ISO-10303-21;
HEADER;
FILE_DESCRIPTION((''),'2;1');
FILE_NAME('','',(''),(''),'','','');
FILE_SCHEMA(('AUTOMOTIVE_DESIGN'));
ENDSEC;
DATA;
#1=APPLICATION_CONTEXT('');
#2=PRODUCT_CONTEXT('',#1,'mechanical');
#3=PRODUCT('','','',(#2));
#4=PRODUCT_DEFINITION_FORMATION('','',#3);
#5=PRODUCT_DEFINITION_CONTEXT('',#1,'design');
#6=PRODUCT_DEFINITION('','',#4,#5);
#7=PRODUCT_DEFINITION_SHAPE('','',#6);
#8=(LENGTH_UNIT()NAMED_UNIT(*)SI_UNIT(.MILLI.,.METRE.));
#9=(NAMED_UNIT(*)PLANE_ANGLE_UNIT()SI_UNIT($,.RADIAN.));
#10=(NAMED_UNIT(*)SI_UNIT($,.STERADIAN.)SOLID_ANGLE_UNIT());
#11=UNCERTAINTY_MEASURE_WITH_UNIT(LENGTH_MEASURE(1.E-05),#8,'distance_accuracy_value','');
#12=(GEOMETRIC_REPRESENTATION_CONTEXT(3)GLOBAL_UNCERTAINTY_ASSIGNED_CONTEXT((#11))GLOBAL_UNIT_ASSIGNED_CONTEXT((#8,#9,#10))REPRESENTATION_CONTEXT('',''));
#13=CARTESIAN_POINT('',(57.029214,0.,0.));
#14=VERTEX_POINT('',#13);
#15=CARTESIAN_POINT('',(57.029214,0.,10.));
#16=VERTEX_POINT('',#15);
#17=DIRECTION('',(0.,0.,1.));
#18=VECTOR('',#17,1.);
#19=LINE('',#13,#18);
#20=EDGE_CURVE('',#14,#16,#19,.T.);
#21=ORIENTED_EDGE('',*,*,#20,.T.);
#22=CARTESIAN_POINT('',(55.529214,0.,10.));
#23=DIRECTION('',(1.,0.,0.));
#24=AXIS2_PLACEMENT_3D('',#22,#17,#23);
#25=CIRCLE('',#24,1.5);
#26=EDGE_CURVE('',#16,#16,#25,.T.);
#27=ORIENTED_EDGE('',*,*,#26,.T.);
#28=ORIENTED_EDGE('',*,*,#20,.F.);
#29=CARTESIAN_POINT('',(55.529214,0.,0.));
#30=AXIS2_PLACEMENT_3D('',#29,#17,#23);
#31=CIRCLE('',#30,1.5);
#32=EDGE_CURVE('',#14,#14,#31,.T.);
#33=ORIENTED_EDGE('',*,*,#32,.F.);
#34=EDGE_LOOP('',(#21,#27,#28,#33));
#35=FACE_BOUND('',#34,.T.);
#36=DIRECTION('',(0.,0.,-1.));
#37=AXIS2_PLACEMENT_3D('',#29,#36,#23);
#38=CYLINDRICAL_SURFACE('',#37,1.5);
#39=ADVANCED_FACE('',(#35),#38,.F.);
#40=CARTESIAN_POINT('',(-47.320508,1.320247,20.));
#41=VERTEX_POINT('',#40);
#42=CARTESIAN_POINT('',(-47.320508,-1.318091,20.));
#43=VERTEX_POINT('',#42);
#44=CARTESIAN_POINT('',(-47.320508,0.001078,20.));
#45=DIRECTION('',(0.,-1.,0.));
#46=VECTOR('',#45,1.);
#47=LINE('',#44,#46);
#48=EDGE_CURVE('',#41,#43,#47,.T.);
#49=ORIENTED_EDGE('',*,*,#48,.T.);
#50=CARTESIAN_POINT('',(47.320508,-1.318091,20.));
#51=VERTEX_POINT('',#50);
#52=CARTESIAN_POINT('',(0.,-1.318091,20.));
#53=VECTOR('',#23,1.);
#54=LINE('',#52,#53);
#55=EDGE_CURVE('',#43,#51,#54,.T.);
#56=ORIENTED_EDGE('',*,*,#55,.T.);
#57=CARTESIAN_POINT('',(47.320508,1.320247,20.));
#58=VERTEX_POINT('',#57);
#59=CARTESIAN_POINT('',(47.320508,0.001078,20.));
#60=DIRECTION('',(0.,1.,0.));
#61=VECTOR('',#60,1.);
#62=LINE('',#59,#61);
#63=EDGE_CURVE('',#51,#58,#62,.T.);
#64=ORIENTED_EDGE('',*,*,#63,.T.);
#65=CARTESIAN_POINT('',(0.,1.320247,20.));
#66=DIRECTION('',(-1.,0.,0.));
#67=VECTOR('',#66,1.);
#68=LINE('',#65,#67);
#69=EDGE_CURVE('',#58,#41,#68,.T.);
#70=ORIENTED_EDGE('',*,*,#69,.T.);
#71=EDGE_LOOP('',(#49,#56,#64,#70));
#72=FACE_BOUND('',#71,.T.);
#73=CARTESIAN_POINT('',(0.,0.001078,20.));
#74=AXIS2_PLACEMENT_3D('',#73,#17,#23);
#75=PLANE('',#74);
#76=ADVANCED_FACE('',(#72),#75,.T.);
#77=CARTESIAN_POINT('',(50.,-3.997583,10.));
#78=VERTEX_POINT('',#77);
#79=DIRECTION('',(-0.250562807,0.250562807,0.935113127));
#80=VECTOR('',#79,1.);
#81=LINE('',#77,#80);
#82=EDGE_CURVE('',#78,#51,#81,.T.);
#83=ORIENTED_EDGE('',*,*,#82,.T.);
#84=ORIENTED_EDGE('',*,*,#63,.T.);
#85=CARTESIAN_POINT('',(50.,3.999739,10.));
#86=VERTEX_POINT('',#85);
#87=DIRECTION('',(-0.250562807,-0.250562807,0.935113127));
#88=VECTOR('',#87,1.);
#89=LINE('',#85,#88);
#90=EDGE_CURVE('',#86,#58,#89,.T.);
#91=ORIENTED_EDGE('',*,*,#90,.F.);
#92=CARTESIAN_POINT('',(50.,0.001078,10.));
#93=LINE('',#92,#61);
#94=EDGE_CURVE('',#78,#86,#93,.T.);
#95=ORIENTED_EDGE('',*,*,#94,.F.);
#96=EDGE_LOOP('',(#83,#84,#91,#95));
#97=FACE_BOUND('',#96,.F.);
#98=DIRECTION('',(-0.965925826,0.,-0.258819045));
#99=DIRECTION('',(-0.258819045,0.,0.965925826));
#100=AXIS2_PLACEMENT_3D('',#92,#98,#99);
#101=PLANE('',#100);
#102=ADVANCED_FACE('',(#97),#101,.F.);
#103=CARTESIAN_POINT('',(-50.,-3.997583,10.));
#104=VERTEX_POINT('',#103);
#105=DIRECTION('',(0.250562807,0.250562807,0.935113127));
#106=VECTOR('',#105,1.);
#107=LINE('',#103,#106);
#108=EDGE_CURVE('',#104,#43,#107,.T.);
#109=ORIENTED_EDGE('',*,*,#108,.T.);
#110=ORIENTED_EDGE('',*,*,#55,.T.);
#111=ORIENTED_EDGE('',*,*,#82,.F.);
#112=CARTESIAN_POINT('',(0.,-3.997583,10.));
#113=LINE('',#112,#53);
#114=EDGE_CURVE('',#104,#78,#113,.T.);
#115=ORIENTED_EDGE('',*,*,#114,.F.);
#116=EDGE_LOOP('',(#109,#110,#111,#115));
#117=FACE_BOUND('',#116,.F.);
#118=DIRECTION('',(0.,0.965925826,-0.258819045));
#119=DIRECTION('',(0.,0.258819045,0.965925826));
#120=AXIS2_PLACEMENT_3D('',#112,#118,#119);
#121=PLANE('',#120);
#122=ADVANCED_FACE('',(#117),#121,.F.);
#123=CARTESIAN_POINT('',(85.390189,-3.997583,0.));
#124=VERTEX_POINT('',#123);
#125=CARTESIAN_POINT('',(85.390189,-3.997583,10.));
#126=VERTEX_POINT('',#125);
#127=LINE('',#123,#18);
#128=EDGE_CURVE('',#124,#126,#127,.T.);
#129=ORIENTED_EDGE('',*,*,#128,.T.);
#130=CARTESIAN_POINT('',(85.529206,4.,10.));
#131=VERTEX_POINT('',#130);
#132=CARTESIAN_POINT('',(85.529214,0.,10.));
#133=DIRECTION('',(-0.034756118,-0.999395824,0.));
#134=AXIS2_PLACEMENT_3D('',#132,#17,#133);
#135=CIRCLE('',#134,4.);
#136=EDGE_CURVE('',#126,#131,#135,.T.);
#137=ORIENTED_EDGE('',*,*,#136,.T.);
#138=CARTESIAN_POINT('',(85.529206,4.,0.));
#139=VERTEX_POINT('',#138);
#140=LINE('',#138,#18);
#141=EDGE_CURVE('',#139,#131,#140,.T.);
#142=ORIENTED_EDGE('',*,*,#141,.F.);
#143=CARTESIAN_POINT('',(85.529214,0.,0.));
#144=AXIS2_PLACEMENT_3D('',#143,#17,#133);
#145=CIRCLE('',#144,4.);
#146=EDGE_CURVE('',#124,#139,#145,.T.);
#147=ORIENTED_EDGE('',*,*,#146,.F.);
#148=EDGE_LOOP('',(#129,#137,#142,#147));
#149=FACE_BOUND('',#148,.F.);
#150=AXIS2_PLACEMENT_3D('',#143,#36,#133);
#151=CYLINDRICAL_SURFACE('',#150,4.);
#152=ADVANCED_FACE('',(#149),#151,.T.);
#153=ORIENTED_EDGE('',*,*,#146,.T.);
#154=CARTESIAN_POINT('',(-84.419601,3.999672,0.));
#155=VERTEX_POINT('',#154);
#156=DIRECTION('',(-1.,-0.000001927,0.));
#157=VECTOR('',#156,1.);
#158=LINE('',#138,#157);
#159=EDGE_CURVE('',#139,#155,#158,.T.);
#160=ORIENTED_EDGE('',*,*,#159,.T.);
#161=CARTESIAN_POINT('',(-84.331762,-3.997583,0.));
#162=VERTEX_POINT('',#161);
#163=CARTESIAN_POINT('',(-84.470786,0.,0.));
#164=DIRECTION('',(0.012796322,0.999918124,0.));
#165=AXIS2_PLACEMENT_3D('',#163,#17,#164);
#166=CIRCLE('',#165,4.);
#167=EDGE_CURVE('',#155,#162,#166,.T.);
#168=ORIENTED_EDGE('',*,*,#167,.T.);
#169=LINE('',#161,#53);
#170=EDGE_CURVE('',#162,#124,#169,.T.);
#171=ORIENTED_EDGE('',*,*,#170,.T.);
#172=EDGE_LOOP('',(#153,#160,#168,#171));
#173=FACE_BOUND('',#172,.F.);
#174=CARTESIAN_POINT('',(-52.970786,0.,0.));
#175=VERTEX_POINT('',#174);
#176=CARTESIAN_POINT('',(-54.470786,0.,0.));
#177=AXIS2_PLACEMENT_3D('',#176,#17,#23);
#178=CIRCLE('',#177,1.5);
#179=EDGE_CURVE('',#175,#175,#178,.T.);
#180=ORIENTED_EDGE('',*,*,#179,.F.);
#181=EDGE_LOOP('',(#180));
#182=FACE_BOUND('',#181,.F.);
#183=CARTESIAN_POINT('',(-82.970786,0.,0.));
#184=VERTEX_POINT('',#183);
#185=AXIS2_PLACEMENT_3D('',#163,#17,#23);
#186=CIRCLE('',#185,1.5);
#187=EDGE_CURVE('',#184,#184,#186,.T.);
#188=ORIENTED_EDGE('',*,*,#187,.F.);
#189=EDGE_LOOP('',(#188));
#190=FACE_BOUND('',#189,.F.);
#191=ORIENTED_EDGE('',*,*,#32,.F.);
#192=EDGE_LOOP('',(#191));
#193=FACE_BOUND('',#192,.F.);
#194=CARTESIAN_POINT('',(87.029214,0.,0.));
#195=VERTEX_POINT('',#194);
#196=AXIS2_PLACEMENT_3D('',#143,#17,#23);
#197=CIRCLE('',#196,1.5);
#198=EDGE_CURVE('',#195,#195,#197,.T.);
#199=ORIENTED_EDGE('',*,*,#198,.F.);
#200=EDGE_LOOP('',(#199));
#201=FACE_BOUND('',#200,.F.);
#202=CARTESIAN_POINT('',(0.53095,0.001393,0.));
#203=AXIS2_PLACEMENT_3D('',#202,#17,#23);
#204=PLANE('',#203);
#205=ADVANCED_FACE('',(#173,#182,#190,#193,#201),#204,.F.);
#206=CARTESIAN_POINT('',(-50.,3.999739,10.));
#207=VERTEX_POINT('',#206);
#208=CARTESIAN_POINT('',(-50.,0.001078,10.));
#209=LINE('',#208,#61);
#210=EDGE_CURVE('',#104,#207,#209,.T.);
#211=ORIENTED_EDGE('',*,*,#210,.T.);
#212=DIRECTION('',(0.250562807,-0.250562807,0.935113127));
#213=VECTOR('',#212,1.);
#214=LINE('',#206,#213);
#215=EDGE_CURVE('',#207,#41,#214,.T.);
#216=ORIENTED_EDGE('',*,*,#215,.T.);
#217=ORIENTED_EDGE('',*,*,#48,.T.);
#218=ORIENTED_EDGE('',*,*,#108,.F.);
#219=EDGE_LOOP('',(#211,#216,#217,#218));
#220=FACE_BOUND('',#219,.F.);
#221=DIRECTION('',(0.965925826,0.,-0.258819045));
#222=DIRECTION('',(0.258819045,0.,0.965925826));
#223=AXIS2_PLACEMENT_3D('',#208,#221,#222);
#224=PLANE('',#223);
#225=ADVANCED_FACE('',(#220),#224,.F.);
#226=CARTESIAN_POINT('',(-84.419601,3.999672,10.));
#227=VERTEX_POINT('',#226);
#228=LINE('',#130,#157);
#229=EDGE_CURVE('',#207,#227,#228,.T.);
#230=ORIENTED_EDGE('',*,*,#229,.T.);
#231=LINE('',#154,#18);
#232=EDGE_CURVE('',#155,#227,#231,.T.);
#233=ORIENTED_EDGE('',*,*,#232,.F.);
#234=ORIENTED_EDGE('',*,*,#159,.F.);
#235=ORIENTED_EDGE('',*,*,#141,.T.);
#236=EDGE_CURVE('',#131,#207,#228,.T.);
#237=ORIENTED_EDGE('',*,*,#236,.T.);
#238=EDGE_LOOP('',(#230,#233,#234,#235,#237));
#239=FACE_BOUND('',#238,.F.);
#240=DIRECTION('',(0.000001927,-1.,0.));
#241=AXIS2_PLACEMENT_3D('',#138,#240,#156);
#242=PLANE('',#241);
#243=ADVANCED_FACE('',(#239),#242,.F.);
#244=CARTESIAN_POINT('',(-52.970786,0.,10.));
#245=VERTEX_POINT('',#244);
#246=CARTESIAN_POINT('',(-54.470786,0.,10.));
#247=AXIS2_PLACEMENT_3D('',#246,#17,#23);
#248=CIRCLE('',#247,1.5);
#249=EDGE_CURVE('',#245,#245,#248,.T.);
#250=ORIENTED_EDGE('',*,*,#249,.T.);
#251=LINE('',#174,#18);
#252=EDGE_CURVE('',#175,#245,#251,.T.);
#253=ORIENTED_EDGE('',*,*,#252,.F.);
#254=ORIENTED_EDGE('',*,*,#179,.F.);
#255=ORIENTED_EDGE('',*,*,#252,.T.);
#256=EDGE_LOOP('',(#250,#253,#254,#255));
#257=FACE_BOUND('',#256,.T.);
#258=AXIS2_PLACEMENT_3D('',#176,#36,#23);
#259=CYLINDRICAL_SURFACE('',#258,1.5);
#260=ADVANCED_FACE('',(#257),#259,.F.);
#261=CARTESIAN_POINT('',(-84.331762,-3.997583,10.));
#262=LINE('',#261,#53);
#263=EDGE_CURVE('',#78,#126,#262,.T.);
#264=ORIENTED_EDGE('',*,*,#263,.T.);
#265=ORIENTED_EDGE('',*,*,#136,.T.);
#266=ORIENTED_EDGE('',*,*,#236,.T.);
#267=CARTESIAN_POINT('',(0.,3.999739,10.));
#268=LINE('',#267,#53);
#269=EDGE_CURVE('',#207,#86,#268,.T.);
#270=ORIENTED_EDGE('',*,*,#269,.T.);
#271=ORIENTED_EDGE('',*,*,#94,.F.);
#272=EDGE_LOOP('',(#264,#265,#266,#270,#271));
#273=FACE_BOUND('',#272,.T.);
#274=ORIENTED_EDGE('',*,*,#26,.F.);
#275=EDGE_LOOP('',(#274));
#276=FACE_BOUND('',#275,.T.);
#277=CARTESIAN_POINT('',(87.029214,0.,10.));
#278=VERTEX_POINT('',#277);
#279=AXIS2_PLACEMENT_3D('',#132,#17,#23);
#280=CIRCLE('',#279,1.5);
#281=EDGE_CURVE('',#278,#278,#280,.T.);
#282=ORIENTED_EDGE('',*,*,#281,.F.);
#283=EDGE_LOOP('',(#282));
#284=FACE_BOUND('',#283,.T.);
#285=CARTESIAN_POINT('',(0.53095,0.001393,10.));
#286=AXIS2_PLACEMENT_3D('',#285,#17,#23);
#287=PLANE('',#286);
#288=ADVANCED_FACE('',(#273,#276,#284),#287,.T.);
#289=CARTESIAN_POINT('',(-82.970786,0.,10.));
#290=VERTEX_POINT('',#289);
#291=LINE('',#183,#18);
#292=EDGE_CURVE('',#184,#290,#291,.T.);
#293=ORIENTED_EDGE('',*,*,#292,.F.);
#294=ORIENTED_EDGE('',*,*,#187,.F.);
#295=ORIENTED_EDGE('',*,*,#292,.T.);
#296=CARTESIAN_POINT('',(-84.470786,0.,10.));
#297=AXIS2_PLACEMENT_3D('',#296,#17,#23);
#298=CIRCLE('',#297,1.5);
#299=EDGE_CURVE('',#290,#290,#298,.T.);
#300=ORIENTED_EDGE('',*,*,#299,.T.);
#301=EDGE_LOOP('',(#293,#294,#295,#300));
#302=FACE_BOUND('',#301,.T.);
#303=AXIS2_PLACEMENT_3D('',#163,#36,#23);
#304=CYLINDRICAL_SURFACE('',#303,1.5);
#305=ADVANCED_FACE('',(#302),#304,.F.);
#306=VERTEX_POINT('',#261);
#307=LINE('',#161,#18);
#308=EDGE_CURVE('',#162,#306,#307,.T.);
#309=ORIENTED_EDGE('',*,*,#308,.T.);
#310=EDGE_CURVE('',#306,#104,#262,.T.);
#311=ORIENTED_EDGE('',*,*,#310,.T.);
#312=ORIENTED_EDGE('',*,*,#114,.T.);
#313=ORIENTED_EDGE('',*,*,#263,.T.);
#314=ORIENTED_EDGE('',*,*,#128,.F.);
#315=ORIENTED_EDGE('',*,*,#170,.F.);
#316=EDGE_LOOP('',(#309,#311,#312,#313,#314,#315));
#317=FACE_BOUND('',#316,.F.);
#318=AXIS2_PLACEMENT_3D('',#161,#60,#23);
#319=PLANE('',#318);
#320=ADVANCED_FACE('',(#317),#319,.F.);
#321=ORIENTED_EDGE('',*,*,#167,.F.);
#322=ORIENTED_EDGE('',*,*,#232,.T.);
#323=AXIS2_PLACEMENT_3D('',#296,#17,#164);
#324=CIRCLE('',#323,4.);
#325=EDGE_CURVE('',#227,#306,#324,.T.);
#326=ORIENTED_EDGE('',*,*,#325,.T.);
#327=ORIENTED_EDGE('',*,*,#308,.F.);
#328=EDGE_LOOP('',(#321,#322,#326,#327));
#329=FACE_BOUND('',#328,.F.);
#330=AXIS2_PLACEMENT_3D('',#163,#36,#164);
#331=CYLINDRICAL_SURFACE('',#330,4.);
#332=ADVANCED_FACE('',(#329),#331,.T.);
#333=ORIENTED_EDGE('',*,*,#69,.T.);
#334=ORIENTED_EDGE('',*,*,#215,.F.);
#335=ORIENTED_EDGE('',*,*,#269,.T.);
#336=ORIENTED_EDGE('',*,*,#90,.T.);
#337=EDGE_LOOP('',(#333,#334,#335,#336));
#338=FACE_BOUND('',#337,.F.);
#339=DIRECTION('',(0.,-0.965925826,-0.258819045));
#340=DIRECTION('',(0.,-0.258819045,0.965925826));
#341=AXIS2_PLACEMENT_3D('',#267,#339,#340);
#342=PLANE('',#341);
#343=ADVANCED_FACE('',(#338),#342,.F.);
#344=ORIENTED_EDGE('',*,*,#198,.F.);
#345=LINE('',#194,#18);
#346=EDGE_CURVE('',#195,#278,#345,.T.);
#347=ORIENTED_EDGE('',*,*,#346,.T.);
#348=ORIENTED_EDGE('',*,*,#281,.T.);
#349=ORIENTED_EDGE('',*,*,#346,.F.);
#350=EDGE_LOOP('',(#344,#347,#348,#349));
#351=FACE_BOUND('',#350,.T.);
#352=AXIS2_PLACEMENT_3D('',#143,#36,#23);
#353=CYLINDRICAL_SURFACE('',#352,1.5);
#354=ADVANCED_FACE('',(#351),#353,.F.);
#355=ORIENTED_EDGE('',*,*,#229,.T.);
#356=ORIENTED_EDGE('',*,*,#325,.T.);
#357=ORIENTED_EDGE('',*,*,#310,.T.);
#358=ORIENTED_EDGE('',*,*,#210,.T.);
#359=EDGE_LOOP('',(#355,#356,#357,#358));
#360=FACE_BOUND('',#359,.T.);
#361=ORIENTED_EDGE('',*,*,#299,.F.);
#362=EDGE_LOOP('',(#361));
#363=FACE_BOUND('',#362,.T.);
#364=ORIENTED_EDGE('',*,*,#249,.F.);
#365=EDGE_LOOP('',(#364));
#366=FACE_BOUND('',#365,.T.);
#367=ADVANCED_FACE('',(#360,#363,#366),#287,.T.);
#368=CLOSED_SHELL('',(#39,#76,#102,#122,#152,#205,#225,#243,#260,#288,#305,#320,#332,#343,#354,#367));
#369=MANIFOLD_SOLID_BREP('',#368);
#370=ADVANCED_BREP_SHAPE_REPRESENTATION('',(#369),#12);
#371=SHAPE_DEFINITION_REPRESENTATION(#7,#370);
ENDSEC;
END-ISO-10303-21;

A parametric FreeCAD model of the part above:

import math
import FreeCAD as App
import Part
import Sketcher

doc = App.newDocument("Part")
body = doc.addObject("PartDesign::Body", "Body")

sketch1 = doc.addObject("Sketcher::SketchObject", "Sketch")
body.addObject(sketch1)
sketch1.AttachmentSupport = (doc.XY_Plane, [""])
sketch1.MapMode = "FlatFace"
sketch1.addGeometry([
    Part.LineSegment(App.Vector(85.5, 4, 0), App.Vector(-84.4, 4, 0)),
    Part.ArcOfCircle(Part.Circle(App.Vector(-84.5, 0, 0), App.Vector(0, 0, 1), 4), math.radians(89), math.radians(272)),
    Part.LineSegment(App.Vector(-84.3, -4, 0), App.Vector(85.4, -4, 0)),
    Part.ArcOfCircle(Part.Circle(App.Vector(85.5, 0, 0), App.Vector(0, 0, 1), 4), math.radians(-92), math.radians(90)),
    Part.Circle(App.Vector(-84.5, 0, 0), App.Vector(0, 0, 1), 1.5),
    Part.Circle(App.Vector(-54.5, 0, 0), App.Vector(0, 0, 1), 1.5),
    Part.Circle(App.Vector(55.5, 0, 0), App.Vector(0, 0, 1), 1.5),
    Part.Circle(App.Vector(85.5, 0, 0), App.Vector(0, 0, 1), 1.5),
], False)
sketch1.addConstraint([
    Sketcher.Constraint("Coincident", 0, 2, 1, 1),
    Sketcher.Constraint("Coincident", 1, 2, 2, 1),
    Sketcher.Constraint("Coincident", 2, 2, 3, 1),
    Sketcher.Constraint("Tangent", 3, 2, 0, 1),
    Sketcher.Constraint("Horizontal", 2),
    Sketcher.Constraint("Coincident", 4, 3, 1, 3),
    Sketcher.Constraint("Coincident", 7, 3, 3, 3),
    Sketcher.Constraint("Equal", 1, 3),
    Sketcher.Constraint("Equal", 4, 5),
    Sketcher.Constraint("Equal", 5, 6),
    Sketcher.Constraint("Equal", 6, 7),
    Sketcher.Constraint("PointOnObject", 1, 3, -1),
    Sketcher.Constraint("PointOnObject", 3, 3, -1),
    Sketcher.Constraint("PointOnObject", 5, 3, -1),
    Sketcher.Constraint("PointOnObject", 6, 3, -1),
    Sketcher.Constraint("Diameter", 4, 3.0),
    Sketcher.Constraint("Radius", 1, 4.0),
    Sketcher.Constraint("DistanceX", 1, 3, 3, 3, 170.0),
    Sketcher.Constraint("DistanceX", 1, 3, 5, 3, 30.0),
    Sketcher.Constraint("DistanceX", 6, 3, 3, 3, 30.0),
    Sketcher.Constraint("DistanceX", 2, 1, 2, 2, 169.721951),
    Sketcher.Constraint("DistanceX", 0, 2, -1, 1, 84.419601),
    Sketcher.Constraint("DistanceX", 1, 2, -1, 1, 84.331762),
])
pad1 = doc.addObject("PartDesign::Pad", "Pad")
body.addObject(pad1)
pad1.Profile = sketch1
pad1.Length = 10

sketch2 = doc.addObject("Sketcher::SketchObject", "Sketch001")
body.addObject(sketch2)
sketch2.AttachmentSupport = (doc.XY_Plane, [""])
sketch2.MapMode = "FlatFace"
sketch2.AttachmentOffset = App.Placement(App.Vector(0, 0, 10), App.Rotation())
sketch2.addGeometry([
    Part.LineSegment(App.Vector(-50, 4, 0), App.Vector(-50, -4, 0)),
    Part.LineSegment(App.Vector(-50, -4, 0), App.Vector(50, -4, 0)),
    Part.LineSegment(App.Vector(50, -4, 0), App.Vector(50, 4, 0)),
    Part.LineSegment(App.Vector(50, 4, 0), App.Vector(-50, 4, 0)),
], False)
sketch2.addConstraint([
    Sketcher.Constraint("Coincident", 0, 2, 1, 1),
    Sketcher.Constraint("Coincident", 1, 2, 2, 1),
    Sketcher.Constraint("Coincident", 2, 2, 3, 1),
    Sketcher.Constraint("Coincident", 3, 2, 0, 1),
    Sketcher.Constraint("Vertical", 0),
    Sketcher.Constraint("Horizontal", 1),
    Sketcher.Constraint("Vertical", 2),
    Sketcher.Constraint("Horizontal", 3),
    Sketcher.Constraint("DistanceX", 1, 1, 1, 2, 100.0),
    Sketcher.Constraint("DistanceX", 0, 2, -1, 1, 50.0),
    Sketcher.Constraint("DistanceY", 0, 2, 0, 1, 7.997322),
    Sketcher.Constraint("DistanceY", -1, 1, 2, 2, 3.999739),
])
pad2 = doc.addObject("PartDesign::Pad", "Pad001")
body.addObject(pad2)
pad2.Profile = sketch2
pad2.Length = 10
pad2.TaperAngle = -15

doc.recompute()
